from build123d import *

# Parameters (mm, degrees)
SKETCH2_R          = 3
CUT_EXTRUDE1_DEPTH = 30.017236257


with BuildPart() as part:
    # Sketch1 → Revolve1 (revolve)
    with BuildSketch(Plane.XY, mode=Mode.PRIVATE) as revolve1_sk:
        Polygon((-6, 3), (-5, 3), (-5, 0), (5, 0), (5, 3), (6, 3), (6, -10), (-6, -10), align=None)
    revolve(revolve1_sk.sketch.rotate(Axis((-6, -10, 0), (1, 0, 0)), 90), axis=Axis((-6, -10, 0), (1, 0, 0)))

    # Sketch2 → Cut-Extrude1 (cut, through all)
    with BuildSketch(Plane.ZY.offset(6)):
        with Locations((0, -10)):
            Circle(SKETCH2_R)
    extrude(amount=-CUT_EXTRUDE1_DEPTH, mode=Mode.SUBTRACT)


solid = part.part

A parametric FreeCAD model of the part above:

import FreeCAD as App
import Part
import Sketcher

V = App.Vector


def add_polygon(sketch, points):
    """Adds a closed chain of lines whose ends are joined by coincident constraints."""
    first, n = sketch.GeometryCount, len(points)
    for a, b in zip(points, points[1:] + points[:1]):
        sketch.addGeometry(Part.LineSegment(App.Vector(*a, 0), App.Vector(*b, 0)), False)
    for i in range(n):
        sketch.addConstraint(Sketcher.Constraint("Coincident", first + i, 2, first + (i + 1) % n, 1))

doc = App.newDocument("Part")
body = doc.addObject("PartDesign::Body", "Body")

# Sketch on XY plane
sketch1 = body.newObject("Sketcher::SketchObject", "Sketch")
sketch1.AttachmentSupport = (doc.getObject("XY_Plane"), [""])
sketch1.MapMode = "FlatFace"
add_polygon(sketch1, [(-5, 3), (-6, 3), (-6, -10), (6, -10), (6, 3), (5, 3), (5, 0), (-5, 0)])  # lines 0-7
sketch1.addGeometry(Part.LineSegment(V(-6, -10, 0), V(6, -10, 0)), True)  # axis
sketch1.addConstraint([
    Sketcher.Constraint("Horizontal", 0),
    Sketcher.Constraint("Vertical", 1),
    Sketcher.Constraint("Horizontal", 2),
    Sketcher.Constraint("Vertical", 3),
    Sketcher.Constraint("Horizontal", 4),
    Sketcher.Constraint("Vertical", 5),
    Sketcher.Constraint("Horizontal", 6),
    Sketcher.Constraint("Vertical", 7),
    Sketcher.Constraint("Horizontal", 8),
    Sketcher.Constraint("Coincident", 8, 1, 1, 2),
    Sketcher.Constraint("Symmetric", 5, 2, 6, 2, -1, 1),
    Sketcher.Constraint("Symmetric", 0, 2, 3, 2, -2),
    Sketcher.Constraint("Vertical", 3, 2, 8, 2),
    Sketcher.Constraint("DistanceX", 0, 2, 0, 1, 1.0),
    Sketcher.Constraint("DistanceX", 2, 1, 2, 2, 12.0),
    Sketcher.Constraint("DistanceY", 1, 2, 1, 1, 13.0),
    Sketcher.Constraint("DistanceY", 5, 2, 5, 1, 3.0),
])
revolution = body.newObject("PartDesign::Revolution", "Revolution")
revolution.Profile = sketch1
revolution.ReferenceAxis = (sketch1, ["Axis0"])
revolution.Angle = 360

# Sketch on YZ plane
sketch2 = body.newObject("Sketcher::SketchObject", "Sketch001")
sketch2.AttachmentSupport = (doc.getObject("YZ_Plane"), [""])
sketch2.MapMode = "FlatFace"
sketch2.AttachmentOffset = App.Placement(V(0, 0, -6), App.Rotation())
sketch2.addGeometry(Part.Circle(V(-10, 0, 0), V(0, 0, 1), 3), False)
sketch2.addConstraint([
    Sketcher.Constraint("PointOnObject", 0, 3, -1),
    Sketcher.Constraint("Diameter", 0, 6.0),
    Sketcher.Constraint("DistanceX", 0, 3, -1, 1, 10.0),
])
pocket1 = body.newObject("PartDesign::Pocket", "Pocket")
pocket1.Profile = sketch2
pocket1.Type = "ThroughAll"
pocket1.Reversed = True

doc.recompute()
